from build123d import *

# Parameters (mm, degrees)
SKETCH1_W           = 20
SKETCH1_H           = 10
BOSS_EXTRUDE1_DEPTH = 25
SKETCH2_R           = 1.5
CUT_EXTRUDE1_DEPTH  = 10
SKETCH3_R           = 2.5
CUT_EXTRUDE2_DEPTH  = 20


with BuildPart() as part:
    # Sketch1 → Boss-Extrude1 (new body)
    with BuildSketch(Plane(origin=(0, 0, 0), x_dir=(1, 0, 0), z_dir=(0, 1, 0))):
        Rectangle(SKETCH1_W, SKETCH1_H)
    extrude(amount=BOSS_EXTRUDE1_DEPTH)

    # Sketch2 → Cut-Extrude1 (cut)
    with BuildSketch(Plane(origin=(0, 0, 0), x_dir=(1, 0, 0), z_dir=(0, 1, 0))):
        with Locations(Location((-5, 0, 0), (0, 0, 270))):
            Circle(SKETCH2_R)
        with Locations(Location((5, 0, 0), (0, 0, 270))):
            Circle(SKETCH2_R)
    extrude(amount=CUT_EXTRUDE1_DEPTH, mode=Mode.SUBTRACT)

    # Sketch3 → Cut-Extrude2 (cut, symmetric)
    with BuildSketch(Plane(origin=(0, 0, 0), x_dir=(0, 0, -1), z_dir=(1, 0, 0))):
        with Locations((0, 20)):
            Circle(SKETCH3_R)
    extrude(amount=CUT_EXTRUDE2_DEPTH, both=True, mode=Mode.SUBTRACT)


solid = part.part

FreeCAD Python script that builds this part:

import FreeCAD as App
import Part
import Sketcher
from FreeCAD import Vector
Q = App.Units.Quantity


def add_polygon(sketch, points):
    """Adds a closed chain of lines whose ends are joined by coincident constraints."""
    first, n = sketch.GeometryCount, len(points)
    for a, b in zip(points, points[1:] + points[:1]):
        sketch.addGeometry(Part.LineSegment(App.Vector(*a, 0), App.Vector(*b, 0)), False)
    for i in range(n):
        sketch.addConstraint(Sketcher.Constraint("Coincident", first + i, 2, first + (i + 1) % n, 1))

doc = App.newDocument("Part")
body = doc.addObject("PartDesign::Body", "Body")

# Sketch on XZ plane
sketch1 = body.newObject("Sketcher::SketchObject", "Sketch")
sketch1.AttachmentSupport = (doc.getObject("XZ_Plane"), [""])
sketch1.MapMode = "FlatFace"
add_polygon(sketch1, [(-10, -5), (-10, 5), (10, 5), (10, -5)])  # lines 0-3
sketch1.addConstraint(Sketcher.Constraint("Vertical", 0))
sketch1.addConstraint(Sketcher.Constraint("Horizontal", 1))
sketch1.addConstraint(Sketcher.Constraint("Vertical", 2))
sketch1.addConstraint(Sketcher.Constraint("Horizontal", 3))
sketch1.addConstraint(Sketcher.Constraint("Symmetric", 0, 2, 2, 2, -1, 1))
sketch1.addConstraint(Sketcher.Constraint("DistanceX", 1, 1, 1, 2, Q("20 mm")))
sketch1.addConstraint(Sketcher.Constraint("DistanceY", 0, 1, 0, 2, Q("10 mm")))
pad1 = body.newObject("PartDesign::Pad", "Pad")
pad1.Profile = sketch1
pad1.Length = 25
pad1.Reversed = True

# Sketch on XZ plane
sketch2 = body.newObject("Sketcher::SketchObject", "Sketch001")
sketch2.AttachmentSupport = (doc.getObject("XZ_Plane"), [""])
sketch2.MapMode = "FlatFace"
sketch2.addGeometry(Part.Circle(Vector(-5, 0, 0), Vector(0, 0, 1), 1.5), False)
sketch2.addGeometry(Part.Circle(Vector(5, 0, 0), Vector(0, 0, 1), 1.5), False)
sketch2.addConstraint(Sketcher.Constraint("Equal", 0, 1))
sketch2.addConstraint(Sketcher.Constraint("Symmetric", 0, 3, 1, 3, -1, 1))
sketch2.addConstraint(Sketcher.Constraint("PointOnObject", 0, 3, -1))
sketch2.addConstraint(Sketcher.Constraint("Diameter", 0, Q("3 mm")))
sketch2.addConstraint(Sketcher.Constraint("DistanceX", 0, 3, -1, 1, Q("5 mm")))
pocket1 = body.newObject("PartDesign::Pocket", "Pocket")
pocket1.Profile = sketch2
pocket1.Length = 10

# Sketch on YZ plane
sketch3 = body.newObject("Sketcher::SketchObject", "Sketch002")
sketch3.AttachmentSupport = (doc.getObject("YZ_Plane"), [""])
sketch3.MapMode = "FlatFace"
sketch3.addGeometry(Part.Circle(Vector(20, 0, 0), Vector(0, 0, 1), 2.5), False)
sketch3.addConstraint(Sketcher.Constraint("PointOnObject", 0, 3, -1))
sketch3.addConstraint(Sketcher.Constraint("Diameter", 0, Q("5 mm")))
sketch3.addConstraint(Sketcher.Constraint("DistanceX", -1, 1, 0, 3, Q("20 mm")))
pocket2 = body.newObject("PartDesign::Pocket", "Pocket001")
pocket2.Profile = sketch3
pocket2.Length = 40
pocket2.Midplane = True

doc.recompute()
